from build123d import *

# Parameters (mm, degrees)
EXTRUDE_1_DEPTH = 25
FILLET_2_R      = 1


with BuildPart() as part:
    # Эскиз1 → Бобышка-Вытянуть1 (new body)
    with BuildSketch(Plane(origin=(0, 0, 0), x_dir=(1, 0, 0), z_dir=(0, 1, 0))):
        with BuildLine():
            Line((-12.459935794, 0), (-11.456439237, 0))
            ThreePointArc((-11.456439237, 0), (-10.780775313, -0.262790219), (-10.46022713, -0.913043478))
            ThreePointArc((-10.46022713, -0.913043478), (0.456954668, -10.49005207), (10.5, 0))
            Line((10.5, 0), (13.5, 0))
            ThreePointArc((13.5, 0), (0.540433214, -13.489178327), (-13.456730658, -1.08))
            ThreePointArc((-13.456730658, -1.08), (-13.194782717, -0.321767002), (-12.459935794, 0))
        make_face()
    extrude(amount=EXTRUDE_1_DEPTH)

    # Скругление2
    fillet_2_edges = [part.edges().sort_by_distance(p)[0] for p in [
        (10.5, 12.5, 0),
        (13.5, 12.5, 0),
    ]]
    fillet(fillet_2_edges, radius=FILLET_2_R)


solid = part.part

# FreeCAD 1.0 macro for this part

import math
import FreeCAD as App
import Part
import Sketcher
from FreeCAD import Vector
Q = App.Units.Quantity


def edges_at(feature, points):
    """Names of the edges that pass closest to the given points."""
    edges = feature.Shape.Edges
    near = lambda p: min(range(len(edges)), key=lambda i: edges[i].distToShape(Part.Vertex(*p))[0])
    return sorted({f"Edge{near(p) + 1}" for p in points})

doc = App.newDocument("Part")
params = doc.addObject("Spreadsheet::Sheet", "Params")
for row, (alias, value) in enumerate([
    ("sketch1_radius", "1 mm"),
    ("sketch1_radius2", "13.5 mm"),
    ("sketch1_radius3", "10.5 mm"),
    ("pad1_length", "25 mm"),
    ("fillet_radius", "1 mm"),
], start=1):
    params.set(f"A{row}", alias)
    params.set(f"B{row}", "=" + value)
    params.setAlias(f"B{row}", alias)

body = doc.addObject("PartDesign::Body", "Body")

sketch1 = body.newObject("Sketcher::SketchObject", "Sketch")
sketch1.AttachmentSupport = (doc.getObject("XZ_Plane"), [""])
sketch1.MapMode = "FlatFace"
sketch1.addGeometry(Part.LineSegment(Vector(-11.456439, 0, 0), Vector(-12.459936, 0, 0)), False)
sketch1.addGeometry(Part.ArcOfCircle(Part.Circle(Vector(-12.459936, 1, 0), Vector(0, 0, 1), 1), math.radians(175.411434), math.radians(270)), False)
sketch1.addGeometry(Part.ArcOfCircle(Part.Circle(Vector(0, 0, 0), Vector(0, 0, 1), 13.5), math.radians(0), math.radians(175.411434)), False)
sketch1.addGeometry(Part.LineSegment(Vector(13.5, 0, 0), Vector(10.5, 0, 0)), False)
sketch1.addGeometry(Part.ArcOfCircle(Part.Circle(Vector(0, 0, 0), Vector(0, 0, 1), 10.5), math.radians(0), math.radians(175.011458)), False)
sketch1.addGeometry(Part.ArcOfCircle(Part.Circle(Vector(-11.456439, 1, 0), Vector(0, 0, 1), 1), math.radians(-90), math.radians(-4.988542)), False)
sketch1.addConstraint(Sketcher.Constraint("Tangent", 0, 2, 1, 2))
sketch1.addConstraint(Sketcher.Constraint("Tangent", 1, 1, 2, 2))
sketch1.addConstraint(Sketcher.Constraint("Coincident", 2, 1, 3, 1))
sketch1.addConstraint(Sketcher.Constraint("Coincident", 3, 2, 4, 1))
sketch1.addConstraint(Sketcher.Constraint("Tangent", 4, 2, 5, 2))
sketch1.addConstraint(Sketcher.Constraint("Tangent", 5, 1, 0, 1))
sketch1.addConstraint(Sketcher.Constraint("Horizontal", 0))
sketch1.addConstraint(Sketcher.Constraint("Horizontal", 3))
sketch1.addConstraint(Sketcher.Constraint("Coincident", 2, 3, -1, 1))
sketch1.addConstraint(Sketcher.Constraint("Coincident", 4, 3, -1, 1))
sketch1.addConstraint(Sketcher.Constraint("Equal", 1, 5))
sketch1.addConstraint(Sketcher.Constraint("PointOnObject", 0, 2, -1))
sketch1.addConstraint(Sketcher.Constraint("PointOnObject", 2, 1, -1))
sketch1.addConstraint(Sketcher.Constraint("Radius", 1, Q("1 mm")))
sketch1.addConstraint(Sketcher.Constraint("Radius", 2, Q("13.5 mm")))
sketch1.addConstraint(Sketcher.Constraint("Radius", 4, Q("10.5 mm")))
sketch1.setExpression("Constraints[13]", "Params.sketch1_radius")
sketch1.setExpression("Constraints[14]", "Params.sketch1_radius2")
sketch1.setExpression("Constraints[15]", "Params.sketch1_radius3")
pad1 = body.newObject("PartDesign::Pad", "Pad")
pad1.Profile = sketch1
pad1.setExpression("Length", "Params.pad1_length")
pad1.Reversed = True
doc.recompute()

fillet = body.newObject("PartDesign::Fillet", "Fillet")
fillet.Base = (pad1, edges_at(pad1, [(10.5, 12.5, 0), (13.5, 12.5, 0)]))
fillet.setExpression("Radius", "Params.fillet_radius")

doc.recompute()
